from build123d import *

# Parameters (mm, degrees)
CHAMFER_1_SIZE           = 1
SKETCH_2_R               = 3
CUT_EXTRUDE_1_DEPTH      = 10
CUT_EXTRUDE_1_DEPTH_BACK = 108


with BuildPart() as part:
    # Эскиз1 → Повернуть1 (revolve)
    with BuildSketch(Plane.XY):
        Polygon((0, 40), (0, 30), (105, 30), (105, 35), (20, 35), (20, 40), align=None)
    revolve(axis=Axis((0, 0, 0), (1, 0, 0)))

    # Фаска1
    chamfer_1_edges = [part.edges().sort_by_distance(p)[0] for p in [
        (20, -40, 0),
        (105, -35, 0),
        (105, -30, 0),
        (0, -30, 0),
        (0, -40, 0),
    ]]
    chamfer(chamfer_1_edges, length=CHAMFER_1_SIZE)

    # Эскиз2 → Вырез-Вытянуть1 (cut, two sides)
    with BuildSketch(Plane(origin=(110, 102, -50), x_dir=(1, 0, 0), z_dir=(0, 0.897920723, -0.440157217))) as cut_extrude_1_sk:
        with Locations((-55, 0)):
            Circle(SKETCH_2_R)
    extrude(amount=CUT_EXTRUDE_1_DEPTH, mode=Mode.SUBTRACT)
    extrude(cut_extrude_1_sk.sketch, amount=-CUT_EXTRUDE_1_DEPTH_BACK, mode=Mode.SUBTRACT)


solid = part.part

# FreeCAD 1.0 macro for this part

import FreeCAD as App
import Part
import Sketcher

V = App.Vector
Q = App.Units.Quantity


def edges_at(feature, points):
    """Names of the edges that pass closest to the given points."""
    edges = feature.Shape.Edges
    near = lambda p: min(range(len(edges)), key=lambda i: edges[i].distToShape(Part.Vertex(*p))[0])
    return sorted({f"Edge{near(p) + 1}" for p in points})

doc = App.newDocument("Part")
params = doc.addObject("Spreadsheet::Sheet", "Params")
for row, (alias, value) in enumerate([
    ("sketch1_width", "105 mm"),
    ("sketch1_width2", "85 mm"),
    ("sketch1_height", "10 mm"),
    ("revolution_angle", "360 deg"),
    ("chamfer_size", "1 mm"),
    ("sketch2_diameter", "6 mm"),
    ("pocket1_length", "10 mm"),
    ("pocket1_length2", "108 mm"),
], start=1):
    params.set(f"A{row}", alias)
    params.set(f"B{row}", "=" + value)
    params.setAlias(f"B{row}", alias)

body = doc.addObject("PartDesign::Body", "Body")

# Sketch on XY plane
sketch1 = body.newObject("Sketcher::SketchObject", "Sketch")
sketch1.AttachmentSupport = (doc.getObject("XY_Plane"), [""])
sketch1.MapMode = "FlatFace"
sketch1.addGeometry([
    Part.LineSegment(V(0, 40, 0), V(0, 30, 0)),  # 0
    Part.LineSegment(V(0, 30, 0), V(105, 30, 0)),  # 1
    Part.LineSegment(V(105, 30, 0), V(105, 35, 0)),  # 2
    Part.LineSegment(V(105, 35, 0), V(20, 35, 0)),  # 3
    Part.LineSegment(V(20, 35, 0), V(20, 40, 0)),  # 4
    Part.LineSegment(V(20, 40, 0), V(0, 40, 0)),  # 5
], False)
sketch1.addConstraint([
    Sketcher.Constraint("Coincident", 0, 2, 1, 1),
    Sketcher.Constraint("Coincident", 1, 2, 2, 1),
    Sketcher.Constraint("Coincident", 2, 2, 3, 1),
    Sketcher.Constraint("Coincident", 3, 2, 4, 1),
    Sketcher.Constraint("Coincident", 4, 2, 5, 1),
    Sketcher.Constraint("Coincident", 5, 2, 0, 1),
    Sketcher.Constraint("Vertical", 0),
    Sketcher.Constraint("Horizontal", 1),
    Sketcher.Constraint("Vertical", 2),
    Sketcher.Constraint("Horizontal", 3),
    Sketcher.Constraint("Vertical", 4),
    Sketcher.Constraint("Horizontal", 5),
    Sketcher.Constraint("PointOnObject", 0, 2, -2),
    Sketcher.Constraint("Equal", 2, 4),
    Sketcher.Constraint("DistanceX", 1, 1, 1, 2, Q("105 mm")),
    Sketcher.Constraint("DistanceX", 3, 2, 3, 1, Q("85 mm")),
    Sketcher.Constraint("DistanceY", 0, 2, 0, 1, Q("10 mm")),
    Sketcher.Constraint("DistanceY", -1, 1, 0, 2, Q("30 mm")),
])
sketch1.setExpression("Constraints[14]", "Params.sketch1_width")
sketch1.setExpression("Constraints[15]", "Params.sketch1_width2")
sketch1.setExpression("Constraints[16]", "Params.sketch1_height")
revolution = body.newObject("PartDesign::Revolution", "Revolution")
revolution.Profile = sketch1
revolution.ReferenceAxis = (sketch1, ["H_Axis"])
revolution.setExpression("Angle", "Params.revolution_angle")
doc.recompute()

chamfer = body.newObject("PartDesign::Chamfer", "Chamfer")
chamfer.Base = (revolution, edges_at(revolution, [
    (20, -40, 0),
    (105, -35, 0),
    (105, -30, 0),
    (0, -30, 0),
    (0, -40, 0),
]))
chamfer.setExpression("Size", "Params.chamfer_size")

# Sketch on an angled plane
sketch2 = body.newObject("Sketcher::SketchObject", "Sketch001")
sketch2.Placement = App.Placement(V(110, 102, -50), App.Rotation(V(1, 0, 0), V(0, -0.440157217, -0.897920723), V(0, 0.897920723, -0.440157217), "ZXY"))
sketch2.addGeometry(Part.Circle(V(-55, 0, 0), V(0, 0, 1), 3), False)
sketch2.addConstraint([
    Sketcher.Constraint("PointOnObject", 0, 3, -1),
    Sketcher.Constraint("Diameter", 0, Q("6 mm")),
    Sketcher.Constraint("DistanceX", 0, 3, -1, 1, Q("55 mm")),
])
sketch2.setExpression("Constraints[1]", "Params.sketch2_diameter")
pocket1 = body.newObject("PartDesign::Pocket", "Pocket")
pocket1.Profile = sketch2
pocket1.Type = "TwoLengths"
pocket1.setExpression("Length", "Params.pocket1_length")
pocket1.setExpression("Length2", "Params.pocket1_length2")
pocket1.Reversed = True

doc.recompute()
